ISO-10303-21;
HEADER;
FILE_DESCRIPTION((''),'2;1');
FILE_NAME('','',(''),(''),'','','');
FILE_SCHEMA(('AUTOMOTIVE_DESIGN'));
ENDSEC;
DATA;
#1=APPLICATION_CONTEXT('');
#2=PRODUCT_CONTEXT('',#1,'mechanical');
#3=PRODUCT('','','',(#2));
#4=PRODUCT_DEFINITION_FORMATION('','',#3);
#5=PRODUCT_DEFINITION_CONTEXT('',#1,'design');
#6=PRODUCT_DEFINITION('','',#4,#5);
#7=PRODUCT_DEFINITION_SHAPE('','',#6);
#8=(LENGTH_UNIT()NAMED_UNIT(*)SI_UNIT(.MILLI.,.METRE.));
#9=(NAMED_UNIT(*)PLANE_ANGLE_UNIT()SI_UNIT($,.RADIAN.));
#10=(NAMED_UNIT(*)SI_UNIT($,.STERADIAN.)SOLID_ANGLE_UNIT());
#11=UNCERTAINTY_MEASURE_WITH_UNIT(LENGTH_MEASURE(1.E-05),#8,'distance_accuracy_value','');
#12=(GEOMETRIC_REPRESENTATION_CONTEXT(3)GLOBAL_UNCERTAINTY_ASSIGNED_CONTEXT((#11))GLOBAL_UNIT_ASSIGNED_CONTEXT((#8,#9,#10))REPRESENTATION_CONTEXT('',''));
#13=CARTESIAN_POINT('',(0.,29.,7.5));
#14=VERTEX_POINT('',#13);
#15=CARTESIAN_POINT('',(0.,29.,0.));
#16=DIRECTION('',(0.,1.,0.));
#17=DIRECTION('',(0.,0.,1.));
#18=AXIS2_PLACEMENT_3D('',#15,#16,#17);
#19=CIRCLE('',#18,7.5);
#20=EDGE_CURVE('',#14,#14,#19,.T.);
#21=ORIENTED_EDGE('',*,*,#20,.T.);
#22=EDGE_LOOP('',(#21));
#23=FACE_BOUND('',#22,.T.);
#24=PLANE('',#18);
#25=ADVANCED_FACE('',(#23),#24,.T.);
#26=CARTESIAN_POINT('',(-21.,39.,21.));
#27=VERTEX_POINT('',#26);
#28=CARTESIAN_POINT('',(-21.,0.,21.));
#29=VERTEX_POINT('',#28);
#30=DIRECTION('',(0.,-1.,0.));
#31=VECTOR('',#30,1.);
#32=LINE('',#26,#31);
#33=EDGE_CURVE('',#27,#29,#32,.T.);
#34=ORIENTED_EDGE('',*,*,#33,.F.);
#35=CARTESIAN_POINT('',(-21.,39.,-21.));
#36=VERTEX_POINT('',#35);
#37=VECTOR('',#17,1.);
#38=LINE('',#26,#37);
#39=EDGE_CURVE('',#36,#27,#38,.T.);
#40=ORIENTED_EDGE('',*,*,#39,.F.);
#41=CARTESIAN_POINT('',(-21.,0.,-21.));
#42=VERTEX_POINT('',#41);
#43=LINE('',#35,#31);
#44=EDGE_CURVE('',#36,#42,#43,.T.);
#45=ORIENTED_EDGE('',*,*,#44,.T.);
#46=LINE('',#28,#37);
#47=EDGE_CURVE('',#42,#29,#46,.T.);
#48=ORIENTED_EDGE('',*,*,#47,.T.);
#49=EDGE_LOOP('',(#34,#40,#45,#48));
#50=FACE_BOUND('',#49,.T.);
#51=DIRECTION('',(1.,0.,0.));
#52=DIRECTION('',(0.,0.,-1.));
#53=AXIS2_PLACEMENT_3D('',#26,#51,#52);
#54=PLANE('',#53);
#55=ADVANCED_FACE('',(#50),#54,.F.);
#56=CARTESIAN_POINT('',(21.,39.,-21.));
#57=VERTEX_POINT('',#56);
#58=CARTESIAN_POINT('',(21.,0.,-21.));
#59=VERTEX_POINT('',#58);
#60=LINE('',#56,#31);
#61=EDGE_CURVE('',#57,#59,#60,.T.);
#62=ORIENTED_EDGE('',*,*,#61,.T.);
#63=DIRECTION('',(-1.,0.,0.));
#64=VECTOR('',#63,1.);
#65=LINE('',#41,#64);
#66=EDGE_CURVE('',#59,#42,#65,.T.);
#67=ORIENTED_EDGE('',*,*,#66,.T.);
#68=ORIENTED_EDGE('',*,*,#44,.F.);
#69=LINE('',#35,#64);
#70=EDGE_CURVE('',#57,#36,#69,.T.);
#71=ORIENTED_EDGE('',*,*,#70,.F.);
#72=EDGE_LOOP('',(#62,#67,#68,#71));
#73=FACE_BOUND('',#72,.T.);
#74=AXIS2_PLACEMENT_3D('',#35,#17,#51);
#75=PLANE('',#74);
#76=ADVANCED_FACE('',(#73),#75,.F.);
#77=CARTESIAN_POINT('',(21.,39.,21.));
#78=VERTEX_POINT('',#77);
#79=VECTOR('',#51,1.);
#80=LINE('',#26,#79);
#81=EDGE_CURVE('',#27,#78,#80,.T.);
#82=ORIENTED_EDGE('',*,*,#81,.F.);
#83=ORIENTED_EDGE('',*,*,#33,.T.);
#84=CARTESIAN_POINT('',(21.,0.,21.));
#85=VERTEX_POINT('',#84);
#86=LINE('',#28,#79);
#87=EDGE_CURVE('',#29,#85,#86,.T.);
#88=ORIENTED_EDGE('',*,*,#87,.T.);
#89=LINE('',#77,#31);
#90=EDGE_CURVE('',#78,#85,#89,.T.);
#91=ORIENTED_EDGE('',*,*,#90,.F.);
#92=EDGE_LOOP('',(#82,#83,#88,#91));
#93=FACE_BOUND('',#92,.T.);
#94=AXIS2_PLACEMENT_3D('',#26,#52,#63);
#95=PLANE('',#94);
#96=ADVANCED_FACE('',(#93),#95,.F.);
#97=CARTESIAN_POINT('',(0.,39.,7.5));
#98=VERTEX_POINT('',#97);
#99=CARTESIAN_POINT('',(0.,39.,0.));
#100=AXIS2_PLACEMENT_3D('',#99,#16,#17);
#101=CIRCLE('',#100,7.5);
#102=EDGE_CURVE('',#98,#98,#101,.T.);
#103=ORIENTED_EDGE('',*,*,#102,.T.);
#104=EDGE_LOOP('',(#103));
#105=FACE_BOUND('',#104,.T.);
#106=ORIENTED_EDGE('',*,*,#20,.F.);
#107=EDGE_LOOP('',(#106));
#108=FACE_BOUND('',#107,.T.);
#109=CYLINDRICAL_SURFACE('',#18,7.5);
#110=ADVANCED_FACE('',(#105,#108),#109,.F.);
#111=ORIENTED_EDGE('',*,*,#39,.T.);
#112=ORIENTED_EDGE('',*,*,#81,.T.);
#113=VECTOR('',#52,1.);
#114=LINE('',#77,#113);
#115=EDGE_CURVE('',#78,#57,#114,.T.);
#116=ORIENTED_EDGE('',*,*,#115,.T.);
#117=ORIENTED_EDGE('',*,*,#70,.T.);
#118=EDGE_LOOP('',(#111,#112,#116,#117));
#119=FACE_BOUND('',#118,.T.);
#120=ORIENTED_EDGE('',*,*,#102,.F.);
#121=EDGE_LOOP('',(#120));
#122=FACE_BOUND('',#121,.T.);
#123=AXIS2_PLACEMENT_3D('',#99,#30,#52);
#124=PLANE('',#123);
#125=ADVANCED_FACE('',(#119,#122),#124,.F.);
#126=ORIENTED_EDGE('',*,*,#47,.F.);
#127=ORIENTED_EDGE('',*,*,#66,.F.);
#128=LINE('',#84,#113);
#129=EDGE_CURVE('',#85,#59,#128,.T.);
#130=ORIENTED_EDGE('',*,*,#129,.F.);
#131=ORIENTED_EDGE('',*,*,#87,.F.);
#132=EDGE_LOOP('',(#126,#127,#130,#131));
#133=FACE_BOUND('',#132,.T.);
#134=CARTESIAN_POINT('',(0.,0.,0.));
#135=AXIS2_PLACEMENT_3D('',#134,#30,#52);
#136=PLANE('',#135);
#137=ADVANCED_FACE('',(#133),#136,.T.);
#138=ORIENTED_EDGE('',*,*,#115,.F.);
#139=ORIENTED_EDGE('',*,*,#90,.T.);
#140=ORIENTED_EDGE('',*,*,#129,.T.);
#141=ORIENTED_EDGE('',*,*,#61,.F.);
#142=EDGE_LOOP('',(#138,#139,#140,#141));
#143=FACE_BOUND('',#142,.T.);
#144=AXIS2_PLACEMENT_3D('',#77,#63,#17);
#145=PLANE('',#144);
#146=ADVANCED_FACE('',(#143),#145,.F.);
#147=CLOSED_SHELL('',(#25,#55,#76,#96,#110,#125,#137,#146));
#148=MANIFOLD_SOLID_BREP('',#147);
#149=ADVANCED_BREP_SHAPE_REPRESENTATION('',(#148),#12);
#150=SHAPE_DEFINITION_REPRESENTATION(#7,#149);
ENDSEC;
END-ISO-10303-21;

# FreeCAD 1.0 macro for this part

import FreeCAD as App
import Part
import Sketcher

doc = App.newDocument("Part")
body = doc.addObject("PartDesign::Body", "Body")

# Sketch on XZ plane
sketch1 = doc.addObject("Sketcher::SketchObject", "Sketch")
body.addObject(sketch1)
sketch1.AttachmentSupport = (doc.XZ_Plane, [""])
sketch1.MapMode = "FlatFace"
sketch1.addGeometry(Part.LineSegment(App.Vector(-21, -21, 0), App.Vector(-21, 21, 0)), False)
sketch1.addGeometry(Part.LineSegment(App.Vector(-21, 21, 0), App.Vector(21, 21, 0)), False)
sketch1.addGeometry(Part.LineSegment(App.Vector(21, 21, 0), App.Vector(21, -21, 0)), False)
sketch1.addGeometry(Part.LineSegment(App.Vector(21, -21, 0), App.Vector(-21, -21, 0)), False)
sketch1.addConstraint(Sketcher.Constraint("Coincident", 0, 2, 1, 1))
sketch1.addConstraint(Sketcher.Constraint("Coincident", 1, 2, 2, 1))
sketch1.addConstraint(Sketcher.Constraint("Coincident", 2, 2, 3, 1))
sketch1.addConstraint(Sketcher.Constraint("Coincident", 3, 2, 0, 1))
sketch1.addConstraint(Sketcher.Constraint("Vertical", 0))
sketch1.addConstraint(Sketcher.Constraint("Horizontal", 1))
sketch1.addConstraint(Sketcher.Constraint("Vertical", 2))
sketch1.addConstraint(Sketcher.Constraint("Horizontal", 3))
sketch1.addConstraint(Sketcher.Constraint("Symmetric", 0, 2, 2, 2, -1, 1))
sketch1.addConstraint(Sketcher.Constraint("Equal", 3, 0))
sketch1.addConstraint(Sketcher.Constraint("DistanceX", 1, 1, 1, 2, 42.0))
pad1 = doc.addObject("PartDesign::Pad", "Pad")
body.addObject(pad1)
pad1.Profile = sketch1
pad1.Length = 39
pad1.Reversed = True

# Sketch on XZ plane
sketch2 = doc.addObject("Sketcher::SketchObject", "Sketch001")
body.addObject(sketch2)
sketch2.AttachmentSupport = (doc.XZ_Plane, [""])
sketch2.MapMode = "FlatFace"
sketch2.AttachmentOffset = App.Placement(App.Vector(0, 0, -39), App.Rotation())
sketch2.addGeometry(Part.Circle(App.Vector(0, 0, 0), App.Vector(0, 0, 1), 8), False)
sketch2.addConstraint(Sketcher.Constraint("Coincident", 0, 3, -1, 1))
sketch2.addConstraint(Sketcher.Constraint("Diameter", 0, 15.0))
pocket1 = doc.addObject("PartDesign::Pocket", "Pocket")
body.addObject(pocket1)
pocket1.Profile = sketch2
pocket1.Length = 10
pocket1.Reversed = True

doc.recompute()
